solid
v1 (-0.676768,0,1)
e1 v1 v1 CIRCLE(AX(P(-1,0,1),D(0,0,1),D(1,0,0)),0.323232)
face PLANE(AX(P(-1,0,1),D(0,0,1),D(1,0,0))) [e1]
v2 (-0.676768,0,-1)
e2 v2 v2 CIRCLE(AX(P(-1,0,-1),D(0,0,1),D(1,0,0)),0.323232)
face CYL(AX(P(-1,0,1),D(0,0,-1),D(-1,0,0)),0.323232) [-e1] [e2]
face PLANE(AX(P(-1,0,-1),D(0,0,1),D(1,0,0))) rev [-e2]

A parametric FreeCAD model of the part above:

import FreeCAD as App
import Part
import Sketcher

V = App.Vector

doc = App.newDocument("Part")
body = doc.addObject("PartDesign::Body", "Body")

# Sketch on XY plane
sketch1 = doc.addObject("Sketcher::SketchObject", "Sketch")
body.addObject(sketch1)
sketch1.AttachmentSupport = (doc.XY_Plane, [""])
sketch1.MapMode = "FlatFace"
sketch1.addGeometry(Part.Circle(V(-1, 0, 0), V(0, 0, 1), 0.32), False)
sketch1.addConstraint(Sketcher.Constraint("PointOnObject", 0, 3, -1))
sketch1.addConstraint(Sketcher.Constraint("DistanceX", 0, 3, -1, 1, 1.0))
sketch1.addConstraint(Sketcher.Constraint("Diameter", 0, 0.646465))
pad1 = doc.addObject("PartDesign::Pad", "Pad")
body.addObject(pad1)
pad1.Profile = sketch1
pad1.Length = 2
pad1.Midplane = True

doc.recompute()
